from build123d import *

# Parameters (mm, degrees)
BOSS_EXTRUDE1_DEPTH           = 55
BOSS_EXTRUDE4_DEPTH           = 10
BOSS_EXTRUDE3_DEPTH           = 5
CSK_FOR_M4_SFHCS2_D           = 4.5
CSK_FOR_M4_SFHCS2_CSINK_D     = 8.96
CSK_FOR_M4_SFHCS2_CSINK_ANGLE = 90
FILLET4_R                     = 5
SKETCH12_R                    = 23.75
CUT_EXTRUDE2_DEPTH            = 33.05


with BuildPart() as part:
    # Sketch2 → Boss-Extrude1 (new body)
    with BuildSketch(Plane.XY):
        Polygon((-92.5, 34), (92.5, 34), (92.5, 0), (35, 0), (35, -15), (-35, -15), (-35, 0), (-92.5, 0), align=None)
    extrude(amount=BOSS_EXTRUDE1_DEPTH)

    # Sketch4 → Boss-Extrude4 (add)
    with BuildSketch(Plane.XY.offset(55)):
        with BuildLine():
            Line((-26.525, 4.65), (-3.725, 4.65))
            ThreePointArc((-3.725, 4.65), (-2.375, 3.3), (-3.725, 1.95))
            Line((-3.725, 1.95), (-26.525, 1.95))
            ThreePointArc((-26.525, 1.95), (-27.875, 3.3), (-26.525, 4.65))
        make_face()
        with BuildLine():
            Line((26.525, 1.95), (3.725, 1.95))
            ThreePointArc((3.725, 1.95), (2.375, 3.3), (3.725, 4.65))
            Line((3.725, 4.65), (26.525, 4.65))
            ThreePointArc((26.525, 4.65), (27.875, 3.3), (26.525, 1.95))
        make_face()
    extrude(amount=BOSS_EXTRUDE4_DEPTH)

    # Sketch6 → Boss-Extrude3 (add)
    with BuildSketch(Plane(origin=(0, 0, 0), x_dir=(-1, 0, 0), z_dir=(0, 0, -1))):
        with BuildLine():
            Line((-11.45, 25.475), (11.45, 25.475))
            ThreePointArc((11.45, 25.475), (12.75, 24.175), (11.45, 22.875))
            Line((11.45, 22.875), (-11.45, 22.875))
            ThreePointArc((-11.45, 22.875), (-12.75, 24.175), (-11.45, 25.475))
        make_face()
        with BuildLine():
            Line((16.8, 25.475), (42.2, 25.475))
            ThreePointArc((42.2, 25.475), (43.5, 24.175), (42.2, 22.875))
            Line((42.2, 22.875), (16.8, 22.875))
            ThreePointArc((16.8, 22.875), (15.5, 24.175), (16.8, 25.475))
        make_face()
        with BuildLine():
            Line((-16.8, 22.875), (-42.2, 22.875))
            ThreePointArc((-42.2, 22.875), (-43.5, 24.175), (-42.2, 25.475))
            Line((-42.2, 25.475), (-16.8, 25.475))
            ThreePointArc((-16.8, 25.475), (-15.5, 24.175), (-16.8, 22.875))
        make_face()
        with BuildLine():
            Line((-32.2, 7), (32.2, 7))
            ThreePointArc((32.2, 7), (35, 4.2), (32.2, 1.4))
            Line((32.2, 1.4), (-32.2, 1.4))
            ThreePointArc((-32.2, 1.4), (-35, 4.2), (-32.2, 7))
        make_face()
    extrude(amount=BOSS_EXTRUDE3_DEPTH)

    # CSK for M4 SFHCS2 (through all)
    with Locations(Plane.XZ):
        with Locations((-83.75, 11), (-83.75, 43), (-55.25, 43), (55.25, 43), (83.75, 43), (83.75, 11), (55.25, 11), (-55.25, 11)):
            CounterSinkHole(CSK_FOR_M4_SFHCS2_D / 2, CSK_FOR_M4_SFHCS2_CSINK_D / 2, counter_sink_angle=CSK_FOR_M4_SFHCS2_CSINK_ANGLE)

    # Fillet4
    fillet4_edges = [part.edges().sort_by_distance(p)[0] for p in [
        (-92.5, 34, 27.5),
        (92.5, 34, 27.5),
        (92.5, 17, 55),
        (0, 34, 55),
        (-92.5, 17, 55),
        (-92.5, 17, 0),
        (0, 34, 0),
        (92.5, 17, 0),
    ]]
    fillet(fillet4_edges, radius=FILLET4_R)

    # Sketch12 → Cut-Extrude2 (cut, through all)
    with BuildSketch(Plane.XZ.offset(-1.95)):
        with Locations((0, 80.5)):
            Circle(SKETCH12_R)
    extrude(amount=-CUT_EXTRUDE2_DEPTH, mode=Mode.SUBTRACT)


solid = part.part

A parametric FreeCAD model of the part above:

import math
import FreeCAD as App
import Part
import Sketcher
Q = App.Units.Quantity


def edges_at(feature, points):
    """Names of the edges that pass closest to the given points."""
    edges = feature.Shape.Edges
    near = lambda p: min(range(len(edges)), key=lambda i: edges[i].distToShape(Part.Vertex(*p))[0])
    return sorted({f"Edge{near(p) + 1}" for p in points})

doc = App.newDocument("Part")
params = doc.addObject("Spreadsheet::Sheet", "Params")
for row, (alias, value) in enumerate([
    ("sketch1_width", "185 mm"),
    ("sketch1_width2", "70 mm"),
    ("sketch1_height", "34 mm"),
    ("sketch1_height2", "15 mm"),
    ("pad1_length", "55 mm"),
    ("sketch2_radius", "1.35 mm"),
    ("sketch2_width", "22.8 mm"),
    ("pad2_length", "10 mm"),
    ("sketch3_radius", "1.3 mm"),
    ("sketch3_radius2", "2.8 mm"),
    ("sketch3_width", "22.9 mm"),
    ("sketch3_width2", "25.4 mm"),
    ("sketch3_width3", "64.4 mm"),
    ("pad3_length", "5 mm"),
    ("sketch4_diameter", "4.5 mm"),
    ("hole_diameter", "4.5 mm"),
    ("hole_csink_diameter", "8.96 mm"),
    ("fillet_radius", "5 mm"),
    ("sketch5_diameter", "47.5 mm"),
], start=1):
    params.set(f"A{row}", alias)
    params.set(f"B{row}", "=" + value)
    params.setAlias(f"B{row}", alias)

body = doc.addObject("PartDesign::Body", "Body")

# Sketch on XY plane
sketch1 = doc.addObject("Sketcher::SketchObject", "Sketch")
body.addObject(sketch1)
sketch1.AttachmentSupport = (doc.XY_Plane, [""])
sketch1.MapMode = "FlatFace"
sketch1.addGeometry(Part.LineSegment(App.Vector(92, 34, 0), App.Vector(-92, 34, 0)), False)
sketch1.addGeometry(Part.LineSegment(App.Vector(-92, 34, 0), App.Vector(-92, 0, 0)), False)
sketch1.addGeometry(Part.LineSegment(App.Vector(-92, 0, 0), App.Vector(-35, 0, 0)), False)
sketch1.addGeometry(Part.LineSegment(App.Vector(-35, 0, 0), App.Vector(-35, -15, 0)), False)
sketch1.addGeometry(Part.LineSegment(App.Vector(-35, -15, 0), App.Vector(35, -15, 0)), False)
sketch1.addGeometry(Part.LineSegment(App.Vector(35, -15, 0), App.Vector(35, 0, 0)), False)
sketch1.addGeometry(Part.LineSegment(App.Vector(35, 0, 0), App.Vector(92, 0, 0)), False)
sketch1.addGeometry(Part.LineSegment(App.Vector(92, 0, 0), App.Vector(92, 34, 0)), False)
sketch1.addConstraint(Sketcher.Constraint("Coincident", 0, 2, 1, 1))
sketch1.addConstraint(Sketcher.Constraint("Coincident", 1, 2, 2, 1))
sketch1.addConstraint(Sketcher.Constraint("Coincident", 2, 2, 3, 1))
sketch1.addConstraint(Sketcher.Constraint("Coincident", 3, 2, 4, 1))
sketch1.addConstraint(Sketcher.Constraint("Coincident", 4, 2, 5, 1))
sketch1.addConstraint(Sketcher.Constraint("Coincident", 5, 2, 6, 1))
sketch1.addConstraint(Sketcher.Constraint("Coincident", 6, 2, 7, 1))
sketch1.addConstraint(Sketcher.Constraint("Coincident", 7, 2, 0, 1))
sketch1.addConstraint(Sketcher.Constraint("Horizontal", 0))
sketch1.addConstraint(Sketcher.Constraint("Vertical", 1))
sketch1.addConstraint(Sketcher.Constraint("Horizontal", 2))
sketch1.addConstraint(Sketcher.Constraint("Vertical", 3))
sketch1.addConstraint(Sketcher.Constraint("Horizontal", 4))
sketch1.addConstraint(Sketcher.Constraint("Vertical", 5))
sketch1.addConstraint(Sketcher.Constraint("Horizontal", 6))
sketch1.addConstraint(Sketcher.Constraint("Vertical", 7))
sketch1.addConstraint(Sketcher.Constraint("Symmetric", 2, 2, 5, 2, -1, 1))
sketch1.addConstraint(Sketcher.Constraint("Symmetric", 1, 2, 6, 2, -2))
sketch1.addConstraint(Sketcher.Constraint("DistanceX", 0, 2, 0, 1, Q("185 mm")))
sketch1.addConstraint(Sketcher.Constraint("DistanceX", 4, 1, 4, 2, Q("70 mm")))
sketch1.addConstraint(Sketcher.Constraint("DistanceY", 1, 2, 1, 1, Q("34 mm")))
sketch1.addConstraint(Sketcher.Constraint("DistanceY", 3, 2, 3, 1, Q("15 mm")))
sketch1.setExpression("Constraints[18]", "Params.sketch1_width")
sketch1.setExpression("Constraints[19]", "Params.sketch1_width2")
sketch1.setExpression("Constraints[20]", "Params.sketch1_height")
sketch1.setExpression("Constraints[21]", "Params.sketch1_height2")
pad1 = doc.addObject("PartDesign::Pad", "Pad")
body.addObject(pad1)
pad1.Profile = sketch1
pad1.setExpression("Length", "Params.pad1_length")

# Sketch on XY plane
sketch2 = doc.addObject("Sketcher::SketchObject", "Sketch001")
body.addObject(sketch2)
sketch2.AttachmentSupport = (doc.XY_Plane, [""])
sketch2.MapMode = "FlatFace"
sketch2.AttachmentOffset = App.Placement(App.Vector(0, 0, 55), App.Rotation())
sketch2.addGeometry(Part.LineSegment(App.Vector(-3.7, 4.7, 0), App.Vector(-26.5, 4.7, 0)), False)
sketch2.addGeometry(Part.ArcOfCircle(Part.Circle(App.Vector(-26.5, 3.3, 0), App.Vector(0, 0, 1), 1.4), math.radians(90), math.radians(270)), False)
sketch2.addGeometry(Part.LineSegment(App.Vector(-26.5, 1.9, 0), App.Vector(-3.7, 1.9, 0)), False)
sketch2.addGeometry(Part.ArcOfCircle(Part.Circle(App.Vector(-3.7, 3.3, 0), App.Vector(0, 0, 1), 1.4), math.radians(-90), math.radians(90)), False)
sketch2.addGeometry(Part.LineSegment(App.Vector(3.7, 1.9, 0), App.Vector(26.5, 1.9, 0)), False)
sketch2.addGeometry(Part.ArcOfCircle(Part.Circle(App.Vector(26.5, 3.3, 0), App.Vector(0, 0, 1), 1.4), math.radians(-90), math.radians(90)), False)
sketch2.addGeometry(Part.LineSegment(App.Vector(26.5, 4.7, 0), App.Vector(3.7, 4.7, 0)), False)
sketch2.addGeometry(Part.ArcOfCircle(Part.Circle(App.Vector(3.7, 3.3, 0), App.Vector(0, 0, 1), 1.4), math.radians(90), math.radians(270)), False)
sketch2.addConstraint(Sketcher.Constraint("Tangent", 0, 2, 1, 1))
sketch2.addConstraint(Sketcher.Constraint("Tangent", 1, 2, 2, 1))
sketch2.addConstraint(Sketcher.Constraint("Tangent", 2, 2, 3, 1))
sketch2.addConstraint(Sketcher.Constraint("Tangent", 3, 2, 0, 1))
sketch2.addConstraint(Sketcher.Constraint("Tangent", 4, 2, 5, 1))
sketch2.addConstraint(Sketcher.Constraint("Tangent", 5, 2, 6, 1))
sketch2.addConstraint(Sketcher.Constraint("Tangent", 6, 2, 7, 1))
sketch2.addConstraint(Sketcher.Constraint("Tangent", 7, 2, 4, 1))
sketch2.addConstraint(Sketcher.Constraint("Horizontal", 0))
sketch2.addConstraint(Sketcher.Constraint("Horizontal", 2))
sketch2.addConstraint(Sketcher.Constraint("Horizontal", 4))
sketch2.addConstraint(Sketcher.Constraint("Horizontal", 6))
sketch2.addConstraint(Sketcher.Constraint("Equal", 3, 5))
sketch2.addConstraint(Sketcher.Constraint("Symmetric", 1, 3, 5, 3, -2))
sketch2.addConstraint(Sketcher.Constraint("Equal", 2, 4))
sketch2.addConstraint(Sketcher.Constraint("Radius", 1, Q("1.35 mm")))
sketch2.addConstraint(Sketcher.Constraint("DistanceX", 0, 2, 0, 1, Q("22.8 mm")))
sketch2.addConstraint(Sketcher.Constraint("DistanceY", -1, 1, 1, 3, Q("3.3 mm")))
sketch2.addConstraint(Sketcher.Constraint("DistanceX", 3, 3, 5, 3, Q("30.25 mm")))
sketch2.setExpression("Constraints[15]", "Params.sketch2_radius")
sketch2.setExpression("Constraints[16]", "Params.sketch2_width")
pad2 = doc.addObject("PartDesign::Pad", "Pad001")
body.addObject(pad2)
pad2.Profile = sketch2
pad2.setExpression("Length", "Params.pad2_length")

# Sketch on XY plane
sketch3 = doc.addObject("Sketcher::SketchObject", "Sketch002")
body.addObject(sketch3)
sketch3.AttachmentSupport = (doc.XY_Plane, [""])
sketch3.MapMode = "FlatFace"
sketch3.addGeometry(Part.LineSegment(App.Vector(-11.4, 25.5, 0), App.Vector(11.4, 25.5, 0)), False)
sketch3.addGeometry(Part.ArcOfCircle(Part.Circle(App.Vector(11.4, 24.2, 0), App.Vector(0, 0, 1), 1.3), math.radians(-90), math.radians(90)), False)
sketch3.addGeometry(Part.LineSegment(App.Vector(11.4, 22.9, 0), App.Vector(-11.4, 22.9, 0)), False)
sketch3.addGeometry(Part.ArcOfCircle(Part.Circle(App.Vector(-11.4, 24.2, 0), App.Vector(0, 0, 1), 1.3), math.radians(90), math.radians(270)), False)
sketch3.addGeometry(Part.LineSegment(App.Vector(-42.2, 25.5, 0), App.Vector(-16.8, 25.5, 0)), False)
sketch3.addGeometry(Part.ArcOfCircle(Part.Circle(App.Vector(-16.8, 24.2, 0), App.Vector(0, 0, 1), 1.3), math.radians(-90), math.radians(90)), False)
sketch3.addGeometry(Part.LineSegment(App.Vector(-16.8, 22.9, 0), App.Vector(-42.2, 22.9, 0)), False)
sketch3.addGeometry(Part.ArcOfCircle(Part.Circle(App.Vector(-42.2, 24.2, 0), App.Vector(0, 0, 1), 1.3), math.radians(90), math.radians(270)), False)
sketch3.addGeometry(Part.LineSegment(App.Vector(42.2, 22.9, 0), App.Vector(16.8, 22.9, 0)), False)
sketch3.addGeometry(Part.ArcOfCircle(Part.Circle(App.Vector(16.8, 24.2, 0), App.Vector(0, 0, 1), 1.3), math.radians(90), math.radians(270)), False)
sketch3.addGeometry(Part.LineSegment(App.Vector(16.8, 25.5, 0), App.Vector(42.2, 25.5, 0)), False)
sketch3.addGeometry(Part.ArcOfCircle(Part.Circle(App.Vector(42.2, 24.2, 0), App.Vector(0, 0, 1), 1.3), math.radians(-90), math.radians(90)), False)
sketch3.addGeometry(Part.LineSegment(App.Vector(-32.2, 7, 0), App.Vector(32.2, 7, 0)), False)
sketch3.addGeometry(Part.ArcOfCircle(Part.Circle(App.Vector(32.2, 4.2, 0), App.Vector(0, 0, 1), 2.8), math.radians(-90), math.radians(90)), False)
sketch3.addGeometry(Part.LineSegment(App.Vector(32.2, 1.4, 0), App.Vector(-32.2, 1.4, 0)), False)
sketch3.addGeometry(Part.ArcOfCircle(Part.Circle(App.Vector(-32.2, 4.2, 0), App.Vector(0, 0, 1), 2.8), math.radians(90), math.radians(270)), False)
sketch3.addConstraint(Sketcher.Constraint("Tangent", 0, 2, 1, 2))
sketch3.addConstraint(Sketcher.Constraint("Tangent", 1, 1, 2, 1))
sketch3.addConstraint(Sketcher.Constraint("Tangent", 2, 2, 3, 2))
sketch3.addConstraint(Sketcher.Constraint("Tangent", 3, 1, 0, 1))
sketch3.addConstraint(Sketcher.Constraint("Tangent", 4, 2, 5, 2))
sketch3.addConstraint(Sketcher.Constraint("Tangent", 5, 1, 6, 1))
sketch3.addConstraint(Sketcher.Constraint("Tangent", 6, 2, 7, 2))
sketch3.addConstraint(Sketcher.Constraint("Tangent", 7, 1, 4, 1))
sketch3.addConstraint(Sketcher.Constraint("Tangent", 8, 2, 9, 2))
sketch3.addConstraint(Sketcher.Constraint("Tangent", 9, 1, 10, 1))
sketch3.addConstraint(Sketcher.Constraint("Tangent", 10, 2, 11, 2))
sketch3.addConstraint(Sketcher.Constraint("Tangent", 11, 1, 8, 1))
sketch3.addConstraint(Sketcher.Constraint("Tangent", 12, 2, 13, 2))
sketch3.addConstraint(Sketcher.Constraint("Tangent", 13, 1, 14, 1))
sketch3.addConstraint(Sketcher.Constraint("Tangent", 14, 2, 15, 2))
sketch3.addConstraint(Sketcher.Constraint("Tangent", 15, 1, 12, 1))
sketch3.addConstraint(Sketcher.Constraint("Horizontal", 0))
sketch3.addConstraint(Sketcher.Constraint("Horizontal", 2))
sketch3.addConstraint(Sketcher.Constraint("Horizontal", 4))
sketch3.addConstraint(Sketcher.Constraint("Horizontal", 6))
sketch3.addConstraint(Sketcher.Constraint("Horizontal", 8))
sketch3.addConstraint(Sketcher.Constraint("Horizontal", 10))
sketch3.addConstraint(Sketcher.Constraint("Horizontal", 12))
sketch3.addConstraint(Sketcher.Constraint("Horizontal", 14))
sketch3.addConstraint(Sketcher.Constraint("Equal", 3, 5))
sketch3.addConstraint(Sketcher.Constraint("Equal", 7, 9))
sketch3.addConstraint(Sketcher.Constraint("Symmetric", 5, 3, 9, 3, -2))
sketch3.addConstraint(Sketcher.Constraint("Horizontal", 3, 3, 5, 3))
sketch3.addConstraint(Sketcher.Constraint("Equal", 6, 8))
sketch3.addConstraint(Sketcher.Constraint("Radius", 1, Q("1.3 mm")))
sketch3.addConstraint(Sketcher.Constraint("Radius", 13, Q("2.8 mm")))
sketch3.addConstraint(Sketcher.Constraint("DistanceX", 0, 1, 0, 2, Q("22.9 mm")))
sketch3.addConstraint(Sketcher.Constraint("DistanceX", 4, 1, 4, 2, Q("25.4 mm")))
sketch3.addConstraint(Sketcher.Constraint("DistanceX", 12, 1, 12, 2, Q("64.4 mm")))
sketch3.addConstraint(Sketcher.Constraint("DistanceY", -1, 1, 12, 2, Q("7 mm")))
sketch3.addConstraint(Sketcher.Constraint("DistanceX", 7, 3, 9, 3, Q("59 mm")))
sketch3.addConstraint(Sketcher.Constraint("DistanceX", 13, 3, 11, 3, Q("10 mm")))
sketch3.addConstraint(Sketcher.Constraint("DistanceX", -1, 1, 1, 3, Q("11.45 mm")))
sketch3.addConstraint(Sketcher.Constraint("DistanceY", -1, 1, 1, 3, Q("24.175 mm")))
sketch3.setExpression("Constraints[29]", "Params.sketch3_radius")
sketch3.setExpression("Constraints[30]", "Params.sketch3_radius2")
sketch3.setExpression("Constraints[31]", "Params.sketch3_width")
sketch3.setExpression("Constraints[32]", "Params.sketch3_width2")
sketch3.setExpression("Constraints[33]", "Params.sketch3_width3")
pad3 = doc.addObject("PartDesign::Pad", "Pad002")
body.addObject(pad3)
pad3.Profile = sketch3
pad3.setExpression("Length", "Params.pad3_length")
pad3.Reversed = True

# Sketch on XZ plane
sketch4 = doc.addObject("Sketcher::SketchObject", "Sketch003")
body.addObject(sketch4)
sketch4.AttachmentSupport = (doc.XZ_Plane, [""])
sketch4.MapMode = "FlatFace"
sketch4.addGeometry(Part.Circle(App.Vector(-83.8, 11, 0), App.Vector(0, 0, 1), 2.2), False)
sketch4.addGeometry(Part.Circle(App.Vector(-83.8, 43, 0), App.Vector(0, 0, 1), 2.2), False)
sketch4.addGeometry(Part.Circle(App.Vector(-55.2, 43, 0), App.Vector(0, 0, 1), 2.2), False)
sketch4.addGeometry(Part.Circle(App.Vector(55.2, 43, 0), App.Vector(0, 0, 1), 2.2), False)
sketch4.addGeometry(Part.Circle(App.Vector(83.8, 43, 0), App.Vector(0, 0, 1), 2.2), False)
sketch4.addGeometry(Part.Circle(App.Vector(83.8, 11, 0), App.Vector(0, 0, 1), 2.2), False)
sketch4.addGeometry(Part.Circle(App.Vector(55.2, 11, 0), App.Vector(0, 0, 1), 2.2), False)
sketch4.addGeometry(Part.Circle(App.Vector(-55.2, 11, 0), App.Vector(0, 0, 1), 2.2), False)
sketch4.addConstraint(Sketcher.Constraint("Equal", 0, 1))
sketch4.addConstraint(Sketcher.Constraint("Equal", 1, 2))
sketch4.addConstraint(Sketcher.Constraint("Equal", 2, 3))
sketch4.addConstraint(Sketcher.Constraint("Equal", 3, 4))
sketch4.addConstraint(Sketcher.Constraint("Equal", 4, 5))
sketch4.addConstraint(Sketcher.Constraint("Equal", 5, 6))
sketch4.addConstraint(Sketcher.Constraint("Equal", 6, 7))
sketch4.addConstraint(Sketcher.Constraint("Symmetric", 2, 3, 3, 3, -2))
sketch4.addConstraint(Sketcher.Constraint("Symmetric", 1, 3, 4, 3, -2))
sketch4.addConstraint(Sketcher.Constraint("Symmetric", 0, 3, 5, 3, -2))
sketch4.addConstraint(Sketcher.Constraint("Symmetric", 6, 3, 7, 3, -2))
sketch4.addConstraint(Sketcher.Constraint("Horizontal", 1, 3, 2, 3))
sketch4.addConstraint(Sketcher.Constraint("Horizontal", 5, 3, 6, 3))
sketch4.addConstraint(Sketcher.Constraint("Vertical", 0, 3, 1, 3))
sketch4.addConstraint(Sketcher.Constraint("Vertical", 3, 3, 6, 3))
sketch4.addConstraint(Sketcher.Constraint("Diameter", 0, Q("4.5 mm")))
sketch4.addConstraint(Sketcher.Constraint("DistanceY", -1, 1, 0, 3, Q("11 mm")))
sketch4.addConstraint(Sketcher.Constraint("DistanceY", -1, 1, 1, 3, Q("43 mm")))
sketch4.addConstraint(Sketcher.Constraint("DistanceX", 1, 3, 3, 3, Q("139 mm")))
sketch4.addConstraint(Sketcher.Constraint("DistanceX", 1, 3, 2, 3, Q("28.5 mm")))
sketch4.setExpression("Constraints[15]", "Params.sketch4_diameter")
doc.recompute()
hole = doc.addObject("PartDesign::Hole", "Hole")
body.addObject(hole)
hole.Profile = sketch4
hole.ThreadType = "None"
hole.setExpression("Diameter", "Params.hole_diameter")
hole.DepthType = "ThroughAll"
hole.HoleCutType = "Countersink"
hole.setExpression("HoleCutDiameter", "Params.hole_csink_diameter")
hole.HoleCutCountersinkAngle = 90
doc.recompute()

fillet = doc.addObject("PartDesign::Fillet", "Fillet")
body.addObject(fillet)
fillet.Base = (hole, edges_at(hole, [
    (-92.5, 34, 27.5),
    (92.5, 34, 27.5),
    (92.5, 17, 55),
    (0, 34, 55),
    (-92.5, 17, 55),
    (-92.5, 17, 0),
    (0, 34, 0),
    (92.5, 17, 0),
]))
fillet.setExpression("Radius", "Params.fillet_radius")

# Sketch on XZ plane
sketch5 = doc.addObject("Sketcher::SketchObject", "Sketch004")
body.addObject(sketch5)
sketch5.AttachmentSupport = (doc.XZ_Plane, [""])
sketch5.MapMode = "FlatFace"
sketch5.AttachmentOffset = App.Placement(App.Vector(0, 0, -1.95), App.Rotation())
sketch5.addGeometry(Part.Circle(App.Vector(0, 80, 0), App.Vector(0, 0, 1), 24), False)
sketch5.addConstraint(Sketcher.Constraint("PointOnObject", 0, 3, -2))
sketch5.addConstraint(Sketcher.Constraint("Diameter", 0, Q("47.5 mm")))
sketch5.addConstraint(Sketcher.Constraint("DistanceY", -1, 1, 0, 3, Q("80.5 mm")))
sketch5.setExpression("Constraints[1]", "Params.sketch5_diameter")
pocket1 = doc.addObject("PartDesign::Pocket", "Pocket")
body.addObject(pocket1)
pocket1.Profile = sketch5
pocket1.Type = "ThroughAll"

doc.recompute()
